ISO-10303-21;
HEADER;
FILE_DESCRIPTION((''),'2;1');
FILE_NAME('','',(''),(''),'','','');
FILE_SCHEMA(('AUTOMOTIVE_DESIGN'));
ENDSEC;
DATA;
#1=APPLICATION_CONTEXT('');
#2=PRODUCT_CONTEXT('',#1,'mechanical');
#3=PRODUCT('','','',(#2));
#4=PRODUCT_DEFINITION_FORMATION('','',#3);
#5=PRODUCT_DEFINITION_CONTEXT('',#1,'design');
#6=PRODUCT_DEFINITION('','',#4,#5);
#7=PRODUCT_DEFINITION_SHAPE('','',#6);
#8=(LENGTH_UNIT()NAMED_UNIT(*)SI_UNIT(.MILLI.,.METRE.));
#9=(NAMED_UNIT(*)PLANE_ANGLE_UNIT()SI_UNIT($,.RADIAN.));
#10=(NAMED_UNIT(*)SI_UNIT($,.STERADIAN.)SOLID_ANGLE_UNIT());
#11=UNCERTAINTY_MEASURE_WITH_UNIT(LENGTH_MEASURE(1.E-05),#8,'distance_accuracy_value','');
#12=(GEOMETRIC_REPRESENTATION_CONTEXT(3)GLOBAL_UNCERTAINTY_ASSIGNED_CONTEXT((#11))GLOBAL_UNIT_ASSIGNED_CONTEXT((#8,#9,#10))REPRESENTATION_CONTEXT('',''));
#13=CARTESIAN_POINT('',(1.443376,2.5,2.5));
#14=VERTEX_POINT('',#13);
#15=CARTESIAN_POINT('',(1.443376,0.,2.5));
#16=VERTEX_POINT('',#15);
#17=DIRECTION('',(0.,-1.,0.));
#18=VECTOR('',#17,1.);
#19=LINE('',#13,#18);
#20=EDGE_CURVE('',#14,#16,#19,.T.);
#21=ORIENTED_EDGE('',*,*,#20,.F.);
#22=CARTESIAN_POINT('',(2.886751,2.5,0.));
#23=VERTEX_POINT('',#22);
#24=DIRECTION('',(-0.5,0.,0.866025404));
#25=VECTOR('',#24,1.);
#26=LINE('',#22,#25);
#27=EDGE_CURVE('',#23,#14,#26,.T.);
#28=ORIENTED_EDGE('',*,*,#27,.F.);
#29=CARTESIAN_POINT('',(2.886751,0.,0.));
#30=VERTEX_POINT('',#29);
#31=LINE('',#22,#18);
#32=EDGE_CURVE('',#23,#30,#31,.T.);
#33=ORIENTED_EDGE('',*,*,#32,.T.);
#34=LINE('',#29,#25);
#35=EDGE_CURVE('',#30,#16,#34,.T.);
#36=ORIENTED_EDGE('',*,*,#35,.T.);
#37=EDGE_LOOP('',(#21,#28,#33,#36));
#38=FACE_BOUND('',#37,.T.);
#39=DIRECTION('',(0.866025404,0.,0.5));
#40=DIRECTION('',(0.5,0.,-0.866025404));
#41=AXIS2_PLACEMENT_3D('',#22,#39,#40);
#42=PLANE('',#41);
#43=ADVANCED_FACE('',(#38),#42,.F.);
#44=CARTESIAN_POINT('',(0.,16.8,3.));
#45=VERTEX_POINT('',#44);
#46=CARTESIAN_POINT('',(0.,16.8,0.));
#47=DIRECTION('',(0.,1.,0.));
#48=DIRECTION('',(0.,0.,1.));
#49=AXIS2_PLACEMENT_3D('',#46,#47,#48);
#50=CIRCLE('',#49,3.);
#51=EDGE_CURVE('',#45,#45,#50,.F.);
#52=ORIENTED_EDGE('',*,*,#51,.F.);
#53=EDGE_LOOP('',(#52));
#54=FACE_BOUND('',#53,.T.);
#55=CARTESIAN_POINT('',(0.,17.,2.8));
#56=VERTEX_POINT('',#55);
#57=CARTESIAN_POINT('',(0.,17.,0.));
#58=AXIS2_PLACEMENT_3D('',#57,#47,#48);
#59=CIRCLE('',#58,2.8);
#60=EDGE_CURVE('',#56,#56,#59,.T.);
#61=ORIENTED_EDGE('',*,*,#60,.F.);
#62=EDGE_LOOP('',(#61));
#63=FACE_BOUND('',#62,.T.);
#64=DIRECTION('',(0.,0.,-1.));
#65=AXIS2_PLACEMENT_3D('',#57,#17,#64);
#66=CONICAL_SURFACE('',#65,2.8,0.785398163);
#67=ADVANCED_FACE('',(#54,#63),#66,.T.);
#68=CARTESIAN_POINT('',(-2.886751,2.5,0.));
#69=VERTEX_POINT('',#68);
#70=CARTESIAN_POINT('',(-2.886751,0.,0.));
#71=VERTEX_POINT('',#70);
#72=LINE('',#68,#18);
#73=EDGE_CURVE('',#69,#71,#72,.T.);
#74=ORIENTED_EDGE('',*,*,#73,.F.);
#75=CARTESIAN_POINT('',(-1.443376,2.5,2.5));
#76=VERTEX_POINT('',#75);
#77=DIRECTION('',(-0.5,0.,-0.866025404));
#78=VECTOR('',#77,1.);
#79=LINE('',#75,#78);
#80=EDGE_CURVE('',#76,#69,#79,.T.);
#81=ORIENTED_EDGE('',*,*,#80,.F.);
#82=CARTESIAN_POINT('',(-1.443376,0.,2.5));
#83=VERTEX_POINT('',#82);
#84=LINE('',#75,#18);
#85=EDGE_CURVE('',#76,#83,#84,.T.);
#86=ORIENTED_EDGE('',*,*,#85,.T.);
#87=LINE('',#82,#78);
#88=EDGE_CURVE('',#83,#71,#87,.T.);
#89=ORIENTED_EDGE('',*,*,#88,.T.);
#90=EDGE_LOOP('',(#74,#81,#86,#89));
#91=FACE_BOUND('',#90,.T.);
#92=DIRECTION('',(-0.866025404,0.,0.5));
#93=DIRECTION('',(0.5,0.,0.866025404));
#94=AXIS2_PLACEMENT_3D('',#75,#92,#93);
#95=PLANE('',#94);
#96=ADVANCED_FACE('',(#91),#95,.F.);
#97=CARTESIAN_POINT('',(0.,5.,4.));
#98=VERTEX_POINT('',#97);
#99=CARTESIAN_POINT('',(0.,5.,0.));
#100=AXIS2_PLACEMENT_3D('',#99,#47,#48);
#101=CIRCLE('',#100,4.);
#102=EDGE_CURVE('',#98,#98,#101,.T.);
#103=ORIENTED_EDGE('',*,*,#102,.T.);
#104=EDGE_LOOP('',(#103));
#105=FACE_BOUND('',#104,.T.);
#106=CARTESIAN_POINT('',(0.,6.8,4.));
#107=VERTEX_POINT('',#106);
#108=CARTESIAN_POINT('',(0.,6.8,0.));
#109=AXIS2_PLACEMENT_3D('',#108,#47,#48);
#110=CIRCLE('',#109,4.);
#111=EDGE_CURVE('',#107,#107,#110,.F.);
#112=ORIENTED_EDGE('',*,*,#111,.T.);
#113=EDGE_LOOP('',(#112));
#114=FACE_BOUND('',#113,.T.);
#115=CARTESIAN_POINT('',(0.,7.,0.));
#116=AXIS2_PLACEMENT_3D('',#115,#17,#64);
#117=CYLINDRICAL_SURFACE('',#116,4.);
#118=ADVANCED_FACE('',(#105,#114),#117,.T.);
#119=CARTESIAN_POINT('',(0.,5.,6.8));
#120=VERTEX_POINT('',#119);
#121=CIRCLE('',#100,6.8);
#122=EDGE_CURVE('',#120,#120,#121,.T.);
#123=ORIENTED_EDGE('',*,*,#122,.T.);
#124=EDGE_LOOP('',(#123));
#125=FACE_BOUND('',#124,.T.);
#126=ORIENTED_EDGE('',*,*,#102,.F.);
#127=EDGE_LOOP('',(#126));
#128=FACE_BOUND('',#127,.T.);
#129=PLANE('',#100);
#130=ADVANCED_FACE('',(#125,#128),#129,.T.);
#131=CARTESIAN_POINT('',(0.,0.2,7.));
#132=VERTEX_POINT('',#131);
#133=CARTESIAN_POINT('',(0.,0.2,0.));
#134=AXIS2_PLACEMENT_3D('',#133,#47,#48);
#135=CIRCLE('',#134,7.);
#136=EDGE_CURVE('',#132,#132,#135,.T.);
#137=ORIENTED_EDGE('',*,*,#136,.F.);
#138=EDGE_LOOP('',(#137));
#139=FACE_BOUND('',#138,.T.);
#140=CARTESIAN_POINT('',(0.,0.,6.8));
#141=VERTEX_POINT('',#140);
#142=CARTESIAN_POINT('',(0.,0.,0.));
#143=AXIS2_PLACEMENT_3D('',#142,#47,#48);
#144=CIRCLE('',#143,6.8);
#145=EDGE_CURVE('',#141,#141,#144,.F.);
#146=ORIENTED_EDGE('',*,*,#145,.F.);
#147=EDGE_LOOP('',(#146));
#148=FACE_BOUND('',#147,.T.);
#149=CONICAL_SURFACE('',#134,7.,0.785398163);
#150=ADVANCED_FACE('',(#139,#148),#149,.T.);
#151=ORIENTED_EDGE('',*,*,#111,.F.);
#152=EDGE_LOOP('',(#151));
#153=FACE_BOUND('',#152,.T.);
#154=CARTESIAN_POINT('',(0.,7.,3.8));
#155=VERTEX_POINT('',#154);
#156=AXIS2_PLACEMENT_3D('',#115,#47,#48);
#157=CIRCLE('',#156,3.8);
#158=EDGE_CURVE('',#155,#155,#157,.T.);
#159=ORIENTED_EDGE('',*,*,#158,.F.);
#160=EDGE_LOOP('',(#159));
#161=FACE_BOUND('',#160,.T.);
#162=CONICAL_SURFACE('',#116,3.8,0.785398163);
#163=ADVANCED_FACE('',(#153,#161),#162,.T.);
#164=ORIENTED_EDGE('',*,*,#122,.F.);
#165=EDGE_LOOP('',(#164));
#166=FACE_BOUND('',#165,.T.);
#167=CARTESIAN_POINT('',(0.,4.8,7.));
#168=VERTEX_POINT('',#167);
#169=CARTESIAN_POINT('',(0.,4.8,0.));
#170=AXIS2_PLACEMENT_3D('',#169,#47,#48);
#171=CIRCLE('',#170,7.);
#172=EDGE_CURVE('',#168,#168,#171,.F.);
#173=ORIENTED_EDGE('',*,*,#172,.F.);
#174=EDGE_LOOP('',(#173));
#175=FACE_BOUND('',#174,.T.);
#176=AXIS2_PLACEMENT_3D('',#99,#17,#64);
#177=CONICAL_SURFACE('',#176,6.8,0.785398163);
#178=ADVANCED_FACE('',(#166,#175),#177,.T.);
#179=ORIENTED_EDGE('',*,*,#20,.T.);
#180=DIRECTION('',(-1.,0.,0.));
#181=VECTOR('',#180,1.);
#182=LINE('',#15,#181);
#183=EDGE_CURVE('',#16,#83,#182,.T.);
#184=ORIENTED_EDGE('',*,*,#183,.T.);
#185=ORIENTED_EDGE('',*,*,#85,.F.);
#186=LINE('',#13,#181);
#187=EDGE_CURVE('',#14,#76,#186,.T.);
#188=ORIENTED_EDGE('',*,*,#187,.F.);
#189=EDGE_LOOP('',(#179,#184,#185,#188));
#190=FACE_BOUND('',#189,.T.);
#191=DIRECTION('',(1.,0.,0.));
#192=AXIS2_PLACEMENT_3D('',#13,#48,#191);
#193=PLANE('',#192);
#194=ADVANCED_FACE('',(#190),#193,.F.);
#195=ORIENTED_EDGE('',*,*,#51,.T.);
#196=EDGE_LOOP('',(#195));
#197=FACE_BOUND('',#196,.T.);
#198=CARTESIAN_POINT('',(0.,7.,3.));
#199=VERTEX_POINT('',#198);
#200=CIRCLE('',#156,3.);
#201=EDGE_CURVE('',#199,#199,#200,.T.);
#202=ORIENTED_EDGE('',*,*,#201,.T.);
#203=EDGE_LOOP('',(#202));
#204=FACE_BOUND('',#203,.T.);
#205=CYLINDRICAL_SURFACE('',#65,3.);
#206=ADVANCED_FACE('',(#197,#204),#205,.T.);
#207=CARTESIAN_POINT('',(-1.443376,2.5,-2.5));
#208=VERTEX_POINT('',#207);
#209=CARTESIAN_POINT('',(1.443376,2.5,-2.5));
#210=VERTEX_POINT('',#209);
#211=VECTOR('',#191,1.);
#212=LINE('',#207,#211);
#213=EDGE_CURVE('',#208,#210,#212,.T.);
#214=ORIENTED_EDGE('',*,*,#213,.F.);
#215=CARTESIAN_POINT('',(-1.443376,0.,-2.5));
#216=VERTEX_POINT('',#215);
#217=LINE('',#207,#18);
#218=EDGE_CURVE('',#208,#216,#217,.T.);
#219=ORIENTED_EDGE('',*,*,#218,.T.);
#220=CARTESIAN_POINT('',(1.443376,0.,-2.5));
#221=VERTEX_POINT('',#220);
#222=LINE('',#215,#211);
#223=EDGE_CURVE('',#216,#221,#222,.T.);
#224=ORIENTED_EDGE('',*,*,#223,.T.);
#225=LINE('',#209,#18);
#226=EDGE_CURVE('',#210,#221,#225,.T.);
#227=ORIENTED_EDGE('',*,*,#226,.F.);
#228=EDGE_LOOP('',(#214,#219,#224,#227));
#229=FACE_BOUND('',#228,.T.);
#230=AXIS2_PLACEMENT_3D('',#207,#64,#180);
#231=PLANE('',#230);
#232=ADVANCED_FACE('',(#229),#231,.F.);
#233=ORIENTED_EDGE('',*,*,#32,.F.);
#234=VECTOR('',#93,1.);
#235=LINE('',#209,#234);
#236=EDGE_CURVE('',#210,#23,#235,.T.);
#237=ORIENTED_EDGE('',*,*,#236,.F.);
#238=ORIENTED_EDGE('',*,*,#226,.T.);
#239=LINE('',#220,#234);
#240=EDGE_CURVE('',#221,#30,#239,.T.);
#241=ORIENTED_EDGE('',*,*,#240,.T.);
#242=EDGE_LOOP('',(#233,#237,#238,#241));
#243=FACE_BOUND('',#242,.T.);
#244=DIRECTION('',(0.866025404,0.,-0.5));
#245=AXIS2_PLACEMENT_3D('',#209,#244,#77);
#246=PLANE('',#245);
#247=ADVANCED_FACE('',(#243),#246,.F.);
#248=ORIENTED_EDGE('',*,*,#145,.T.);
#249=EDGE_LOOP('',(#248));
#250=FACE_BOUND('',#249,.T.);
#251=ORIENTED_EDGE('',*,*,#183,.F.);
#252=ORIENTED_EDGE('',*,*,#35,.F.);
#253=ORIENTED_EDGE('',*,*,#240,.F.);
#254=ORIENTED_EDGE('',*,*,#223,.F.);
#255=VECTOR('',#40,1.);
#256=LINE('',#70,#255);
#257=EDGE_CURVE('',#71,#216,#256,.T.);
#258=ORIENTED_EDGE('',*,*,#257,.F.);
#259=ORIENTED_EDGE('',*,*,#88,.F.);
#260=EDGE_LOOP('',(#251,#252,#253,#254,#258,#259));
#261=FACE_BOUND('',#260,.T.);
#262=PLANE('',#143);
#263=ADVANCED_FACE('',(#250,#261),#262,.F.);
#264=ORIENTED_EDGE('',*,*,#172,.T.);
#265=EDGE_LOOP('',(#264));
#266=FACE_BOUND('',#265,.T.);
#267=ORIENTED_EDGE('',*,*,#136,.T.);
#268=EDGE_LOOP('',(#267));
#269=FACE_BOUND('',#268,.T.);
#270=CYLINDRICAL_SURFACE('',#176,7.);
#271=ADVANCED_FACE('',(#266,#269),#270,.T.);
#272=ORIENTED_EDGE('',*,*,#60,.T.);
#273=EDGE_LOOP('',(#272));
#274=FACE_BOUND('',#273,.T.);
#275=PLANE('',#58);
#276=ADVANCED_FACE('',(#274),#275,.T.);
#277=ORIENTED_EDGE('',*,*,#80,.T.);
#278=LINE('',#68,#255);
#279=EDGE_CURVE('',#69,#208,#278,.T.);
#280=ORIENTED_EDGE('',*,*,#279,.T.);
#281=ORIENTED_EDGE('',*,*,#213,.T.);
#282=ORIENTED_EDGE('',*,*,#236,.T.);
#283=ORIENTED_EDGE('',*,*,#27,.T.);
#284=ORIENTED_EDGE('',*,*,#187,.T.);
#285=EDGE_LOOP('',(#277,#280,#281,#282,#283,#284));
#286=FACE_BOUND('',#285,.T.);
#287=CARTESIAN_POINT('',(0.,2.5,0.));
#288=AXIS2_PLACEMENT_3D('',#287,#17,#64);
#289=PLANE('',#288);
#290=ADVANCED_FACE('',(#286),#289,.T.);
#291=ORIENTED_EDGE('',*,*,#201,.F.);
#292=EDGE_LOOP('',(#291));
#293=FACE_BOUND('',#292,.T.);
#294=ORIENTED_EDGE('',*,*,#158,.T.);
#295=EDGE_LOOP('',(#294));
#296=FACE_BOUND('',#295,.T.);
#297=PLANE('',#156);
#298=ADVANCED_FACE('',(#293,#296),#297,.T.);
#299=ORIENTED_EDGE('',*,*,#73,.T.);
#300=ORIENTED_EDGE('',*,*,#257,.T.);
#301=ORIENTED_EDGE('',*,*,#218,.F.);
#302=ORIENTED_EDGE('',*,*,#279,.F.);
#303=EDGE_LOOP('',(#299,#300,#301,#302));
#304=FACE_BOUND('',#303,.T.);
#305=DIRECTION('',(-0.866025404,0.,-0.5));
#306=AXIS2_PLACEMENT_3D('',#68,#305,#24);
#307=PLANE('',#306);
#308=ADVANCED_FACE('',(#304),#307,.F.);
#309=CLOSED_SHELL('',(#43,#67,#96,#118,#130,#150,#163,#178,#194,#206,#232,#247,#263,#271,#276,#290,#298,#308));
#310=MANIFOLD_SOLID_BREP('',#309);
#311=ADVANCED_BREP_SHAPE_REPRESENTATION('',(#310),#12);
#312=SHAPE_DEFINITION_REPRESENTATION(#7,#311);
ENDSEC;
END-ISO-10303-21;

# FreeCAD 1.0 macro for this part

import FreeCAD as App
import Part
import Sketcher

V = App.Vector
Q = App.Units.Quantity


def edges_at(feature, points):
    """Names of the edges that pass closest to the given points."""
    edges = feature.Shape.Edges
    near = lambda p: min(range(len(edges)), key=lambda i: edges[i].distToShape(Part.Vertex(*p))[0])
    return sorted({f"Edge{near(p) + 1}" for p in points})


def add_polygon(sketch, points):
    """Adds a closed chain of lines whose ends are joined by coincident constraints."""
    first, n = sketch.GeometryCount, len(points)
    for a, b in zip(points, points[1:] + points[:1]):
        sketch.addGeometry(Part.LineSegment(App.Vector(*a, 0), App.Vector(*b, 0)), False)
    for i in range(n):
        sketch.addConstraint(Sketcher.Constraint("Coincident", first + i, 2, first + (i + 1) % n, 1))

doc = App.newDocument("Part")
body = doc.addObject("PartDesign::Body", "Body")

sketch1 = body.newObject("Sketcher::SketchObject", "Sketch")
sketch1.AttachmentSupport = (doc.getObject("XZ_Plane"), [""])
sketch1.MapMode = "FlatFace"
sketch1.addGeometry(Part.Circle(V(0, 0, 0), V(0, 0, 1), 7), False)
sketch1.addConstraint(Sketcher.Constraint("Coincident", 0, 3, -1, 1))
sketch1.addConstraint(Sketcher.Constraint("Diameter", 0, 14.0))
pad1 = body.newObject("PartDesign::Pad", "Pad")
pad1.Profile = sketch1
pad1.Length = 5
pad1.Reversed = True

sketch2 = body.newObject("Sketcher::SketchObject", "Sketch001")
sketch2.AttachmentSupport = (doc.getObject("XZ_Plane"), [""])
sketch2.MapMode = "FlatFace"
sketch2.AttachmentOffset = App.Placement(V(0, 0, -5), App.Rotation())
sketch2.addGeometry(Part.Circle(V(0, 0, 0), V(0, 0, 1), 4), False)
sketch2.addConstraint(Sketcher.Constraint("Coincident", 0, 3, -1, 1))
sketch2.addConstraint(Sketcher.Constraint("Diameter", 0, 8.0))
pad2 = body.newObject("PartDesign::Pad", "Pad001")
pad2.Profile = sketch2
pad2.Length = 2
pad2.Reversed = True

sketch3 = body.newObject("Sketcher::SketchObject", "Sketch002")
sketch3.AttachmentSupport = (doc.getObject("XZ_Plane"), [""])
sketch3.MapMode = "FlatFace"
sketch3.AttachmentOffset = App.Placement(V(0, 0, -7), App.Rotation())
sketch3.addGeometry(Part.Circle(V(0, 0, 0), V(0, 0, 1), 3), False)
sketch3.addConstraint(Sketcher.Constraint("Coincident", 0, 3, -1, 1))
sketch3.addConstraint(Sketcher.Constraint("Diameter", 0, 6.0))
pad3 = body.newObject("PartDesign::Pad", "Pad002")
pad3.Profile = sketch3
pad3.Length = 10
pad3.Reversed = True
doc.recompute()

chamfer = body.newObject("PartDesign::Chamfer", "Chamfer")
chamfer.Base = (pad3, edges_at(pad3, [
    (0, 17, -3),
    (0, 0, -7),
    (0, 5, -7),
    (0, 7, -4),
]))
chamfer.Size = 0.2

sketch4 = body.newObject("Sketcher::SketchObject", "Sketch003")
sketch4.AttachmentSupport = (doc.getObject("XZ_Plane"), [""])
sketch4.MapMode = "FlatFace"
add_polygon(sketch4, [(2.886751, 0), (1.443376, 2.5), (-1.443376, 2.5), (-2.886751, 0), (-1.443376, -2.5), (1.443376, -2.5)])
sketch4.addConstraint(Sketcher.Constraint("Horizontal", 1))
sketch4.addConstraint(Sketcher.Constraint("Horizontal", 4))
sketch4.addConstraint(Sketcher.Constraint("Symmetric", 0, 2, 3, 2, -1, 1))
sketch4.addConstraint(Sketcher.Constraint("Symmetric", 2, 2, 5, 2, -1, 1))
sketch4.addConstraint(Sketcher.Constraint("PointOnObject", 2, 2, -1))
sketch4.addConstraint(Sketcher.Constraint("Parallel", 2, 5))
sketch4.addConstraint(Sketcher.Constraint("Vertical", 1, 2, 3, 2))
sketch4.addConstraint(Sketcher.Constraint("Angle", 0, Q("120 deg")))
sketch4.addConstraint(Sketcher.Constraint("DistanceY", 3, 2, 1, 2, 5.0))
sketch4.addConstraint(Sketcher.Constraint("DistanceX", 1, 2, 1, 1, 2.886751))
pocket1 = body.newObject("PartDesign::Pocket", "Pocket")
pocket1.Profile = sketch4
pocket1.Length = 2.5

doc.recompute()
